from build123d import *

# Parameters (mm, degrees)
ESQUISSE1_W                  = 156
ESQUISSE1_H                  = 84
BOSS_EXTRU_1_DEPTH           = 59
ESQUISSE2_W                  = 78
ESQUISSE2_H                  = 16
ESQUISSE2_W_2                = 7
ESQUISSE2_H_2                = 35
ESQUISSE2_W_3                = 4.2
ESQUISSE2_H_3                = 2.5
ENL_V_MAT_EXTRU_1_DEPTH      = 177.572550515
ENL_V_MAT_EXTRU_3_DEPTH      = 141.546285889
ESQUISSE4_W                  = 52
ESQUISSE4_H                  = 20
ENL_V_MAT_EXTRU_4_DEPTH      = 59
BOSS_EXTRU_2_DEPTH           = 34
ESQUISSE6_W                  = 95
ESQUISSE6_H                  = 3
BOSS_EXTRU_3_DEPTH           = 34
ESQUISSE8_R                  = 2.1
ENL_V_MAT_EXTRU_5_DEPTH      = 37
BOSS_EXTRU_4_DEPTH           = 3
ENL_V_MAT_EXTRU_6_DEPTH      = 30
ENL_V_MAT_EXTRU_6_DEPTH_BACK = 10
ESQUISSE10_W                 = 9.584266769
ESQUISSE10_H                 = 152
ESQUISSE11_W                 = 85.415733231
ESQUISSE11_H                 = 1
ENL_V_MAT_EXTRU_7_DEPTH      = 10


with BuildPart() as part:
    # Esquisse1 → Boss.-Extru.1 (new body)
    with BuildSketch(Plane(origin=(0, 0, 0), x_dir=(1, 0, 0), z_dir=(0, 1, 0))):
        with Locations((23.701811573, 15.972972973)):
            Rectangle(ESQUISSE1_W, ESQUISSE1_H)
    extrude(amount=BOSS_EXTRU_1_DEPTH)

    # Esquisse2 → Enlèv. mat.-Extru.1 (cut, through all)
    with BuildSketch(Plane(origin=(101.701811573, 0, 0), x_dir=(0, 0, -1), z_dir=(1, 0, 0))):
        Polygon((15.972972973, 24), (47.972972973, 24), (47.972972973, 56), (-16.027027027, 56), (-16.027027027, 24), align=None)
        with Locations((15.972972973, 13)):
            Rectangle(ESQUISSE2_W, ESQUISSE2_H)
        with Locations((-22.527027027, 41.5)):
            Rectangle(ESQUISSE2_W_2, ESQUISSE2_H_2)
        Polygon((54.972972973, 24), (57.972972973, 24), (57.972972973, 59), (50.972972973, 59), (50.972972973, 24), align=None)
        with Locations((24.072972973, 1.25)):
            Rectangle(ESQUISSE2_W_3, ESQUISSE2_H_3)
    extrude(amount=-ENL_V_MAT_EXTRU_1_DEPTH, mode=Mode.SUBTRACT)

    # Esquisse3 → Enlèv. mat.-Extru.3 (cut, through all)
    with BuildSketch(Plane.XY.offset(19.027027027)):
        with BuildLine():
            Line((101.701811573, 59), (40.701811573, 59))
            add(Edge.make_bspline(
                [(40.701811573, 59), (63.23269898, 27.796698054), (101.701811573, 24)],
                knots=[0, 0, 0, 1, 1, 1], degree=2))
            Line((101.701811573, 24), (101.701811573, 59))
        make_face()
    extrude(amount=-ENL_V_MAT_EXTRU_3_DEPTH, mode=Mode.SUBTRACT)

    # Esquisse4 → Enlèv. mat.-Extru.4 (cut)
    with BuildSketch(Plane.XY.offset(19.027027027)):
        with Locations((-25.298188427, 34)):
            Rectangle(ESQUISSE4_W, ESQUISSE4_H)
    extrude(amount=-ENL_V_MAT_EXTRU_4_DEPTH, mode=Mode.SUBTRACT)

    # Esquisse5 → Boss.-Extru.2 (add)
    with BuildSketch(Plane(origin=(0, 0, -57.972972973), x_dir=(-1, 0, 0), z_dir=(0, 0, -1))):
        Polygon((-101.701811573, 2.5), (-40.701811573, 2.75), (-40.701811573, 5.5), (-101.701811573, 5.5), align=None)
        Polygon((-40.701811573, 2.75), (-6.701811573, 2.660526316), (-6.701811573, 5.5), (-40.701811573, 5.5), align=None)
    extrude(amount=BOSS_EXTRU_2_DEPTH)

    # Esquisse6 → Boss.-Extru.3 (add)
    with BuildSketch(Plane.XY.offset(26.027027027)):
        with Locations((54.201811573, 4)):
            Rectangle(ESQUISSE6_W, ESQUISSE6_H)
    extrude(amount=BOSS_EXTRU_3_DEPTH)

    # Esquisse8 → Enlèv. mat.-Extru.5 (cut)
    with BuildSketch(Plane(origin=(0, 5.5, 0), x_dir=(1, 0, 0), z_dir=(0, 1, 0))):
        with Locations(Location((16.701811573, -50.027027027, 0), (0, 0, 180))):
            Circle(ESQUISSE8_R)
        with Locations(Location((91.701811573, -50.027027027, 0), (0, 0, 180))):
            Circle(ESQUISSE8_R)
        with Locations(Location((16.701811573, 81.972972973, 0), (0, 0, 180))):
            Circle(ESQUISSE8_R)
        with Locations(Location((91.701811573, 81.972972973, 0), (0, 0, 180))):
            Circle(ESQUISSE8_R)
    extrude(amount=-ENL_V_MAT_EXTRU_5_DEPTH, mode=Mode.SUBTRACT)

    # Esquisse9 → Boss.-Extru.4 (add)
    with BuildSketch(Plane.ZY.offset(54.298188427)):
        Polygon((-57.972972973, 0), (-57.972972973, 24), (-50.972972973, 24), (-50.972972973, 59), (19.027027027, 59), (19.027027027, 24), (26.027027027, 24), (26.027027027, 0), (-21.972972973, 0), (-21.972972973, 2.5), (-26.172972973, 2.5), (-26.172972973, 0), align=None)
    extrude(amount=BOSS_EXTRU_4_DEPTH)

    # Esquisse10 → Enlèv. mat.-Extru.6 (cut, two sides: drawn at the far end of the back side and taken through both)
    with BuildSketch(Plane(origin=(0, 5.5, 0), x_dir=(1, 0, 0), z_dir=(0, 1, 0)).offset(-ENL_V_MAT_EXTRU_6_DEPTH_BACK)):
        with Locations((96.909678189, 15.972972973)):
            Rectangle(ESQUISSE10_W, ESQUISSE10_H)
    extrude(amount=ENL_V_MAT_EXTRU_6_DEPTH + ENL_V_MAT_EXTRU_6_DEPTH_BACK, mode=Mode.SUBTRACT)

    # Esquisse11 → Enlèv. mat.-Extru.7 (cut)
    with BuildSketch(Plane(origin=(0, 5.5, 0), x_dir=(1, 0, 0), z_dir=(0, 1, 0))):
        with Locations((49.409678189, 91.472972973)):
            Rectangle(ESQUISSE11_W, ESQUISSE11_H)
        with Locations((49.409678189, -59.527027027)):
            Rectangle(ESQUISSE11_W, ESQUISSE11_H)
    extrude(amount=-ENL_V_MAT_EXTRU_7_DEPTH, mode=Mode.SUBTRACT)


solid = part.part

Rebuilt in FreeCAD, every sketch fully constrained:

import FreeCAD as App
import Part
import Sketcher
Q = App.Units.Quantity

doc = App.newDocument("Part")
body = doc.addObject("PartDesign::Body", "Body")

sketch1 = doc.addObject("Sketcher::SketchObject", "Sketch")
body.addObject(sketch1)
sketch1.AttachmentSupport = (doc.XZ_Plane, [""])
sketch1.MapMode = "FlatFace"
sketch1.addGeometry([
    Part.LineSegment(App.Vector(-54.298188, -57.972973, 0), App.Vector(-54.298188, 26.027027, 0)),
    Part.LineSegment(App.Vector(-54.298188, 26.027027, 0), App.Vector(101.701812, 26.027027, 0)),
    Part.LineSegment(App.Vector(101.701812, 26.027027, 0), App.Vector(101.701812, -57.972973, 0)),
    Part.LineSegment(App.Vector(101.701812, -57.972973, 0), App.Vector(-54.298188, -57.972973, 0)),
], False)
sketch1.addConstraint([
    Sketcher.Constraint("Coincident", 0, 2, 1, 1),
    Sketcher.Constraint("Coincident", 1, 2, 2, 1),
    Sketcher.Constraint("Coincident", 2, 2, 3, 1),
    Sketcher.Constraint("Coincident", 3, 2, 0, 1),
    Sketcher.Constraint("Vertical", 0),
    Sketcher.Constraint("Horizontal", 1),
    Sketcher.Constraint("Vertical", 2),
    Sketcher.Constraint("Horizontal", 3),
    Sketcher.Constraint("DistanceX", 1, 1, 1, 2, Q("156 mm")),
    Sketcher.Constraint("DistanceY", 0, 1, 0, 2, Q("84 mm")),
    Sketcher.Constraint("DistanceX", 0, 2, -1, 1, Q("54.298188 mm")),
    Sketcher.Constraint("DistanceY", -1, 1, 0, 2, Q("26.027027 mm")),
])
pad1 = doc.addObject("PartDesign::Pad", "Pad")
body.addObject(pad1)
pad1.Profile = sketch1
pad1.Length = 59
pad1.Reversed = True

sketch2 = doc.addObject("Sketcher::SketchObject", "Sketch001")
body.addObject(sketch2)
sketch2.AttachmentSupport = (doc.YZ_Plane, [""])
sketch2.MapMode = "FlatFace"
sketch2.AttachmentOffset = App.Placement(App.Vector(0, 0, 101.701812), App.Rotation())
sketch2.addGeometry([
    Part.LineSegment(App.Vector(24, -47.972973, 0), App.Vector(56, -47.972973, 0)),
    Part.LineSegment(App.Vector(56, -47.972973, 0), App.Vector(56, 16.027027, 0)),
    Part.LineSegment(App.Vector(56, 16.027027, 0), App.Vector(24, 16.027027, 0)),
    Part.LineSegment(App.Vector(24, 16.027027, 0), App.Vector(24, -47.972973, 0)),
    Part.LineSegment(App.Vector(21, 23.027027, 0), App.Vector(5, 23.027027, 0)),
    Part.LineSegment(App.Vector(5, 23.027027, 0), App.Vector(5, -54.972973, 0)),
    Part.LineSegment(App.Vector(5, -54.972973, 0), App.Vector(21, -54.972973, 0)),
    Part.LineSegment(App.Vector(21, -54.972973, 0), App.Vector(21, 23.027027, 0)),
    Part.LineSegment(App.Vector(59, 26.027027, 0), App.Vector(24, 26.027027, 0)),
    Part.LineSegment(App.Vector(24, 26.027027, 0), App.Vector(24, 19.027027, 0)),
    Part.LineSegment(App.Vector(24, 19.027027, 0), App.Vector(59, 19.027027, 0)),
    Part.LineSegment(App.Vector(59, 19.027027, 0), App.Vector(59, 26.027027, 0)),
    Part.LineSegment(App.Vector(24, -57.972973, 0), App.Vector(59, -57.972973, 0)),
    Part.LineSegment(App.Vector(59, -57.972973, 0), App.Vector(59, -50.972973, 0)),
    Part.LineSegment(App.Vector(59, -50.972973, 0), App.Vector(24, -50.972973, 0)),
    Part.LineSegment(App.Vector(24, -50.972973, 0), App.Vector(24, -57.972973, 0)),
    Part.LineSegment(App.Vector(2.5, -21.972973, 0), App.Vector(0, -21.972973, 0)),
    Part.LineSegment(App.Vector(0, -21.972973, 0), App.Vector(0, -26.172973, 0)),
    Part.LineSegment(App.Vector(0, -26.172973, 0), App.Vector(2.5, -26.172973, 0)),
    Part.LineSegment(App.Vector(2.5, -26.172973, 0), App.Vector(2.5, -21.972973, 0)),
], False)
sketch2.addConstraint([
    Sketcher.Constraint("Coincident", 0, 2, 1, 1),
    Sketcher.Constraint("Coincident", 1, 2, 2, 1),
    Sketcher.Constraint("Coincident", 2, 2, 3, 1),
    Sketcher.Constraint("Coincident", 3, 2, 0, 1),
    Sketcher.Constraint("Coincident", 4, 2, 5, 1),
    Sketcher.Constraint("Coincident", 5, 2, 6, 1),
    Sketcher.Constraint("Coincident", 6, 2, 7, 1),
    Sketcher.Constraint("Coincident", 7, 2, 4, 1),
    Sketcher.Constraint("Coincident", 8, 2, 9, 1),
    Sketcher.Constraint("Coincident", 9, 2, 10, 1),
    Sketcher.Constraint("Coincident", 10, 2, 11, 1),
    Sketcher.Constraint("Coincident", 11, 2, 8, 1),
    Sketcher.Constraint("Coincident", 12, 2, 13, 1),
    Sketcher.Constraint("Coincident", 13, 2, 14, 1),
    Sketcher.Constraint("Coincident", 14, 2, 15, 1),
    Sketcher.Constraint("Coincident", 15, 2, 12, 1),
    Sketcher.Constraint("Coincident", 16, 2, 17, 1),
    Sketcher.Constraint("Coincident", 17, 2, 18, 1),
    Sketcher.Constraint("Coincident", 18, 2, 19, 1),
    Sketcher.Constraint("Coincident", 19, 2, 16, 1),
    Sketcher.Constraint("Horizontal", 0),
    Sketcher.Constraint("Vertical", 1),
    Sketcher.Constraint("Horizontal", 2),
    Sketcher.Constraint("Vertical", 3),
    Sketcher.Constraint("Horizontal", 4),
    Sketcher.Constraint("Vertical", 5),
    Sketcher.Constraint("Horizontal", 6),
    Sketcher.Constraint("Vertical", 7),
    Sketcher.Constraint("Horizontal", 8),
    Sketcher.Constraint("Vertical", 9),
    Sketcher.Constraint("Horizontal", 10),
    Sketcher.Constraint("Vertical", 11),
    Sketcher.Constraint("Horizontal", 12),
    Sketcher.Constraint("Vertical", 13),
    Sketcher.Constraint("Horizontal", 14),
    Sketcher.Constraint("Vertical", 15),
    Sketcher.Constraint("Horizontal", 16),
    Sketcher.Constraint("Vertical", 17),
    Sketcher.Constraint("Horizontal", 18),
    Sketcher.Constraint("Vertical", 19),
    Sketcher.Constraint("PointOnObject", 16, 2, -2),
    Sketcher.Constraint("Vertical", 3, 2, 8, 2),
    Sketcher.Constraint("Vertical", 11, 2, 12, 2),
    Sketcher.Constraint("Vertical", 9, 2, 14, 2),
    Sketcher.Constraint("Equal", 11, 13),
    Sketcher.Constraint("DistanceX", 0, 1, 0, 2, Q("32 mm")),
    Sketcher.Constraint("DistanceX", 4, 2, 4, 1, Q("16 mm")),
    Sketcher.Constraint("DistanceX", 8, 2, 8, 1, Q("35 mm")),
    Sketcher.Constraint("DistanceY", 1, 1, 1, 2, Q("64 mm")),
    Sketcher.Constraint("DistanceY", 5, 2, 5, 1, Q("78 mm")),
    Sketcher.Constraint("DistanceY", 9, 2, 9, 1, Q("7 mm")),
    Sketcher.Constraint("DistanceX", 16, 2, 16, 1, Q("2.5 mm")),
    Sketcher.Constraint("DistanceY", 17, 2, 17, 1, Q("4.2 mm")),
    Sketcher.Constraint("DistanceX", -1, 1, 0, 2, Q("56 mm")),
    Sketcher.Constraint("DistanceX", -1, 1, 4, 2, Q("5 mm")),
    Sketcher.Constraint("DistanceY", 2, 2, 4, 2, Q("7 mm")),
    Sketcher.Constraint("DistanceY", 7, 2, 8, 2, Q("3 mm")),
    Sketcher.Constraint("DistanceY", 12, 2, 0, 2, Q("10 mm")),
    Sketcher.Constraint("DistanceY", 5, 2, 16, 2, Q("33 mm")),
    Sketcher.Constraint("DistanceY", 0, 2, -1, 1, Q("47.972973 mm")),
])
pocket1 = doc.addObject("PartDesign::Pocket", "Pocket")
body.addObject(pocket1)
pocket1.Profile = sketch2
pocket1.Type = "ThroughAll"

sketch3 = doc.addObject("Sketcher::SketchObject", "Sketch002")
body.addObject(sketch3)
sketch3.AttachmentSupport = (doc.XY_Plane, [""])
sketch3.MapMode = "FlatFace"
sketch3.AttachmentOffset = App.Placement(App.Vector(0, 0, 19.027027), App.Rotation())
sketch3.addGeometry([
    Part.LineSegment(App.Vector(101.701812, 59, 0), App.Vector(40.701812, 59, 0)),
    Part.BSplineCurve([App.Vector(40.701812, 59, 0), App.Vector(63.232699, 27.796698, 0), App.Vector(101.701812, 24, 0)], [3, 3], [0, 1], False, 2, [1, 1, 1], False),
    Part.LineSegment(App.Vector(101.701812, 24, 0), App.Vector(101.701812, 59, 0)),
], False)
sketch3.addConstraint([
    Sketcher.Constraint("Block", 1),
    Sketcher.Constraint("Coincident", 0, 2, 1, 1),
    Sketcher.Constraint("Coincident", 1, 2, 2, 1),
    Sketcher.Constraint("Coincident", 2, 2, 0, 1),
    Sketcher.Constraint("Horizontal", 0),
    Sketcher.Constraint("Vertical", 2),
])
pocket2 = doc.addObject("PartDesign::Pocket", "Pocket001")
body.addObject(pocket2)
pocket2.Profile = sketch3
pocket2.Type = "ThroughAll"

sketch4 = doc.addObject("Sketcher::SketchObject", "Sketch003")
body.addObject(sketch4)
sketch4.AttachmentSupport = (doc.XY_Plane, [""])
sketch4.MapMode = "FlatFace"
sketch4.AttachmentOffset = App.Placement(App.Vector(0, 0, 19.027027), App.Rotation())
sketch4.addGeometry([
    Part.LineSegment(App.Vector(-51.298188, 44, 0), App.Vector(-51.298188, 24, 0)),
    Part.LineSegment(App.Vector(-51.298188, 24, 0), App.Vector(0.701812, 24, 0)),
    Part.LineSegment(App.Vector(0.701812, 24, 0), App.Vector(0.701812, 44, 0)),
    Part.LineSegment(App.Vector(0.701812, 44, 0), App.Vector(-51.298188, 44, 0)),
], False)
sketch4.addConstraint([
    Sketcher.Constraint("Coincident", 0, 2, 1, 1),
    Sketcher.Constraint("Coincident", 1, 2, 2, 1),
    Sketcher.Constraint("Coincident", 2, 2, 3, 1),
    Sketcher.Constraint("Coincident", 3, 2, 0, 1),
    Sketcher.Constraint("Vertical", 0),
    Sketcher.Constraint("Horizontal", 1),
    Sketcher.Constraint("Vertical", 2),
    Sketcher.Constraint("Horizontal", 3),
    Sketcher.Constraint("DistanceX", 1, 1, 1, 2, Q("52 mm")),
    Sketcher.Constraint("DistanceY", 0, 2, 0, 1, Q("20 mm")),
    Sketcher.Constraint("DistanceY", -1, 1, 0, 2, Q("24 mm")),
    Sketcher.Constraint("DistanceX", 0, 2, -1, 1, Q("51.298188 mm")),
])
pocket3 = doc.addObject("PartDesign::Pocket", "Pocket002")
body.addObject(pocket3)
pocket3.Profile = sketch4
pocket3.Length = 59

sketch5 = doc.addObject("Sketcher::SketchObject", "Sketch004")
body.addObject(sketch5)
sketch5.AttachmentSupport = (doc.XY_Plane, [""])
sketch5.MapMode = "FlatFace"
sketch5.AttachmentOffset = App.Placement(App.Vector(0, 0, -57.972973), App.Rotation())
sketch5.addGeometry([
    Part.LineSegment(App.Vector(101.701812, 2.5, 0), App.Vector(40.701812, 2.75, 0)),
    Part.LineSegment(App.Vector(40.701812, 2.75, 0), App.Vector(6.701812, 2.660526, 0)),
    Part.LineSegment(App.Vector(6.701812, 2.660526, 0), App.Vector(6.701812, 5.5, 0)),
    Part.LineSegment(App.Vector(6.701812, 5.5, 0), App.Vector(101.701812, 5.5, 0)),
    Part.LineSegment(App.Vector(101.701812, 5.5, 0), App.Vector(101.701812, 2.5, 0)),
], False)
sketch5.addConstraint([
    Sketcher.Constraint("Coincident", 0, 2, 1, 1),
    Sketcher.Constraint("Coincident", 1, 2, 2, 1),
    Sketcher.Constraint("Coincident", 2, 2, 3, 1),
    Sketcher.Constraint("Coincident", 3, 2, 4, 1),
    Sketcher.Constraint("Coincident", 4, 2, 0, 1),
    Sketcher.Constraint("Vertical", 2),
    Sketcher.Constraint("Horizontal", 3),
    Sketcher.Constraint("Vertical", 4),
    Sketcher.Constraint("DistanceX", 3, 1, 3, 2, Q("95 mm")),
    Sketcher.Constraint("DistanceY", 4, 2, 4, 1, Q("3 mm")),
    Sketcher.Constraint("DistanceX", 1, 2, 0, 2, Q("34 mm")),
    Sketcher.Constraint("DistanceY", -1, 1, 2, 2, Q("5.5 mm")),
    Sketcher.Constraint("DistanceY", -1, 1, 0, 2, Q("2.75 mm")),
    Sketcher.Constraint("DistanceY", 2, 1, 2, 2, Q("2.839474 mm")),
    Sketcher.Constraint("DistanceX", -1, 1, 0, 2, Q("40.701812 mm")),
])
pad2 = doc.addObject("PartDesign::Pad", "Pad001")
body.addObject(pad2)
pad2.Profile = sketch5
pad2.Length = 34
pad2.Reversed = True

sketch6 = doc.addObject("Sketcher::SketchObject", "Sketch005")
body.addObject(sketch6)
sketch6.AttachmentSupport = (doc.XY_Plane, [""])
sketch6.MapMode = "FlatFace"
sketch6.AttachmentOffset = App.Placement(App.Vector(0, 0, 26.027027), App.Rotation())
sketch6.addGeometry([
    Part.LineSegment(App.Vector(6.701812, 5.5, 0), App.Vector(6.701812, 2.5, 0)),
    Part.LineSegment(App.Vector(6.701812, 2.5, 0), App.Vector(101.701812, 2.5, 0)),
    Part.LineSegment(App.Vector(101.701812, 2.5, 0), App.Vector(101.701812, 5.5, 0)),
    Part.LineSegment(App.Vector(101.701812, 5.5, 0), App.Vector(6.701812, 5.5, 0)),
], False)
sketch6.addConstraint([
    Sketcher.Constraint("Coincident", 0, 2, 1, 1),
    Sketcher.Constraint("Coincident", 1, 2, 2, 1),
    Sketcher.Constraint("Coincident", 2, 2, 3, 1),
    Sketcher.Constraint("Coincident", 3, 2, 0, 1),
    Sketcher.Constraint("Vertical", 0),
    Sketcher.Constraint("Horizontal", 1),
    Sketcher.Constraint("Vertical", 2),
    Sketcher.Constraint("Horizontal", 3),
    Sketcher.Constraint("DistanceX", 1, 1, 1, 2, Q("95 mm")),
    Sketcher.Constraint("DistanceY", 0, 2, 0, 1, Q("3 mm")),
    Sketcher.Constraint("DistanceY", -1, 1, 0, 2, Q("2.5 mm")),
    Sketcher.Constraint("DistanceX", -1, 1, 0, 2, Q("6.701812 mm")),
])
pad3 = doc.addObject("PartDesign::Pad", "Pad002")
body.addObject(pad3)
pad3.Profile = sketch6
pad3.Length = 34

sketch7 = doc.addObject("Sketcher::SketchObject", "Sketch006")
body.addObject(sketch7)
sketch7.AttachmentSupport = (doc.XZ_Plane, [""])
sketch7.MapMode = "FlatFace"
sketch7.AttachmentOffset = App.Placement(App.Vector(0, 0, -5.5), App.Rotation())
sketch7.addGeometry([
    Part.Circle(App.Vector(16.701812, 50.027027, 0), App.Vector(0, 0, 1), 2.1),
    Part.Circle(App.Vector(91.701812, 50.027027, 0), App.Vector(0, 0, 1), 2.1),
    Part.Circle(App.Vector(16.701812, -81.972973, 0), App.Vector(0, 0, 1), 2.1),
    Part.Circle(App.Vector(91.701812, -81.972973, 0), App.Vector(0, 0, 1), 2.1),
], False)
sketch7.addConstraint([
    Sketcher.Constraint("Equal", 0, 1),
    Sketcher.Constraint("Equal", 1, 2),
    Sketcher.Constraint("Equal", 2, 3),
    Sketcher.Constraint("Horizontal", 0, 3, 1, 3),
    Sketcher.Constraint("Horizontal", 2, 3, 3, 3),
    Sketcher.Constraint("Vertical", 0, 3, 2, 3),
    Sketcher.Constraint("Vertical", 1, 3, 3, 3),
    Sketcher.Constraint("Diameter", 0, Q("4.2 mm")),
    Sketcher.Constraint("DistanceX", 0, 3, 1, 3, Q("75 mm")),
    Sketcher.Constraint("DistanceY", 2, 3, 0, 3, Q("132 mm")),
    Sketcher.Constraint("DistanceX", -1, 1, 0, 3, Q("16.701812 mm")),
    Sketcher.Constraint("DistanceY", -1, 1, 0, 3, Q("50.027027 mm")),
])
pocket4 = doc.addObject("PartDesign::Pocket", "Pocket003")
body.addObject(pocket4)
pocket4.Profile = sketch7
pocket4.Length = 37
pocket4.Reversed = True

sketch8 = doc.addObject("Sketcher::SketchObject", "Sketch007")
body.addObject(sketch8)
sketch8.AttachmentSupport = (doc.YZ_Plane, [""])
sketch8.MapMode = "FlatFace"
sketch8.AttachmentOffset = App.Placement(App.Vector(0, 0, -54.298188), App.Rotation())
sketch8.addGeometry([
    Part.LineSegment(App.Vector(24, -57.972973, 0), App.Vector(0, -57.972973, 0)),
    Part.LineSegment(App.Vector(0, -57.972973, 0), App.Vector(0, -26.172973, 0)),
    Part.LineSegment(App.Vector(0, -26.172973, 0), App.Vector(2.5, -26.172973, 0)),
    Part.LineSegment(App.Vector(2.5, -26.172973, 0), App.Vector(2.5, -21.972973, 0)),
    Part.LineSegment(App.Vector(2.5, -21.972973, 0), App.Vector(0, -21.972973, 0)),
    Part.LineSegment(App.Vector(0, -21.972973, 0), App.Vector(0, 26.027027, 0)),
    Part.LineSegment(App.Vector(0, 26.027027, 0), App.Vector(24, 26.027027, 0)),
    Part.LineSegment(App.Vector(24, 26.027027, 0), App.Vector(24, 19.027027, 0)),
    Part.LineSegment(App.Vector(24, 19.027027, 0), App.Vector(59, 19.027027, 0)),
    Part.LineSegment(App.Vector(59, 19.027027, 0), App.Vector(59, -50.972973, 0)),
    Part.LineSegment(App.Vector(59, -50.972973, 0), App.Vector(24, -50.972973, 0)),
    Part.LineSegment(App.Vector(24, -50.972973, 0), App.Vector(24, -57.972973, 0)),
], False)
sketch8.addConstraint([
    Sketcher.Constraint("Coincident", 0, 2, 1, 1),
    Sketcher.Constraint("Coincident", 1, 2, 2, 1),
    Sketcher.Constraint("Coincident", 2, 2, 3, 1),
    Sketcher.Constraint("Coincident", 3, 2, 4, 1),
    Sketcher.Constraint("Coincident", 4, 2, 5, 1),
    Sketcher.Constraint("Coincident", 5, 2, 6, 1),
    Sketcher.Constraint("Coincident", 6, 2, 7, 1),
    Sketcher.Constraint("Coincident", 7, 2, 8, 1),
    Sketcher.Constraint("Coincident", 8, 2, 9, 1),
    Sketcher.Constraint("Coincident", 9, 2, 10, 1),
    Sketcher.Constraint("Coincident", 10, 2, 11, 1),
    Sketcher.Constraint("Coincident", 11, 2, 0, 1),
    Sketcher.Constraint("Horizontal", 0),
    Sketcher.Constraint("Vertical", 1),
    Sketcher.Constraint("Horizontal", 2),
    Sketcher.Constraint("Vertical", 3),
    Sketcher.Constraint("Horizontal", 4),
    Sketcher.Constraint("Vertical", 5),
    Sketcher.Constraint("Horizontal", 6),
    Sketcher.Constraint("Vertical", 7),
    Sketcher.Constraint("Horizontal", 8),
    Sketcher.Constraint("Vertical", 9),
    Sketcher.Constraint("Horizontal", 10),
    Sketcher.Constraint("Vertical", 11),
    Sketcher.Constraint("PointOnObject", 0, 2, -2),
    Sketcher.Constraint("PointOnObject", 4, 2, -2),
    Sketcher.Constraint("Vertical", 7, 2, 10, 2),
    Sketcher.Constraint("Equal", 7, 11),
    Sketcher.Constraint("DistanceX", 0, 2, 0, 1, Q("24 mm")),
    Sketcher.Constraint("DistanceX", 8, 1, 8, 2, Q("35 mm")),
    Sketcher.Constraint("DistanceY", 5, 1, 5, 2, Q("48 mm")),
    Sketcher.Constraint("DistanceY", 7, 2, 7, 1, Q("7 mm")),
    Sketcher.Constraint("DistanceY", 9, 2, 9, 1, Q("70 mm")),
    Sketcher.Constraint("DistanceX", 2, 1, 2, 2, Q("2.5 mm")),
    Sketcher.Constraint("DistanceY", 1, 1, 1, 2, Q("31.8 mm")),
    Sketcher.Constraint("DistanceY", 0, 2, -1, 1, Q("57.972973 mm")),
])
pad4 = doc.addObject("PartDesign::Pad", "Pad003")
body.addObject(pad4)
pad4.Profile = sketch8
pad4.Length = 3
pad4.Reversed = True

sketch9 = doc.addObject("Sketcher::SketchObject", "Sketch008")
body.addObject(sketch9)
sketch9.AttachmentSupport = (doc.XZ_Plane, [""])
sketch9.MapMode = "FlatFace"
sketch9.AttachmentOffset = App.Placement(App.Vector(0, 0, -5.5), App.Rotation())
sketch9.addGeometry([
    Part.LineSegment(App.Vector(92.117545, -91.972973, 0), App.Vector(92.117545, 60.027027, 0)),
    Part.LineSegment(App.Vector(92.117545, 60.027027, 0), App.Vector(101.701812, 60.027027, 0)),
    Part.LineSegment(App.Vector(101.701812, 60.027027, 0), App.Vector(101.701812, -91.972973, 0)),
    Part.LineSegment(App.Vector(101.701812, -91.972973, 0), App.Vector(92.117545, -91.972973, 0)),
], False)
sketch9.addConstraint([
    Sketcher.Constraint("Coincident", 0, 2, 1, 1),
    Sketcher.Constraint("Coincident", 1, 2, 2, 1),
    Sketcher.Constraint("Coincident", 2, 2, 3, 1),
    Sketcher.Constraint("Coincident", 3, 2, 0, 1),
    Sketcher.Constraint("Vertical", 0),
    Sketcher.Constraint("Horizontal", 1),
    Sketcher.Constraint("Vertical", 2),
    Sketcher.Constraint("Horizontal", 3),
    Sketcher.Constraint("DistanceY", 0, 1, 0, 2, Q("152 mm")),
    Sketcher.Constraint("DistanceX", 1, 1, 1, 2, Q("9.584267 mm")),
    Sketcher.Constraint("DistanceX", -1, 1, 1, 2, Q("101.701812 mm")),
    Sketcher.Constraint("DistanceY", -1, 1, 0, 2, Q("60.027027 mm")),
])
pocket5 = doc.addObject("PartDesign::Pocket", "Pocket004")
body.addObject(pocket5)
pocket5.Profile = sketch9
pocket5.Type = "ThroughAll"
pocket5.Midplane = True

sketch10 = doc.addObject("Sketcher::SketchObject", "Sketch009")
body.addObject(sketch10)
sketch10.AttachmentSupport = (doc.XZ_Plane, [""])
sketch10.MapMode = "FlatFace"
sketch10.AttachmentOffset = App.Placement(App.Vector(0, 0, -5.5), App.Rotation())
sketch10.addGeometry([
    Part.LineSegment(App.Vector(6.701812, -91.972973, 0), App.Vector(6.701812, -90.972973, 0)),
    Part.LineSegment(App.Vector(6.701812, -90.972973, 0), App.Vector(92.117545, -90.972973, 0)),
    Part.LineSegment(App.Vector(92.117545, -90.972973, 0), App.Vector(92.117545, -91.972973, 0)),
    Part.LineSegment(App.Vector(92.117545, -91.972973, 0), App.Vector(6.701812, -91.972973, 0)),
    Part.LineSegment(App.Vector(6.701812, 59.027027, 0), App.Vector(6.701812, 60.027027, 0)),
    Part.LineSegment(App.Vector(6.701812, 60.027027, 0), App.Vector(92.117545, 60.027027, 0)),
    Part.LineSegment(App.Vector(92.117545, 60.027027, 0), App.Vector(92.117545, 59.027027, 0)),
    Part.LineSegment(App.Vector(92.117545, 59.027027, 0), App.Vector(6.701812, 59.027027, 0)),
], False)
sketch10.addConstraint([
    Sketcher.Constraint("Coincident", 0, 2, 1, 1),
    Sketcher.Constraint("Coincident", 1, 2, 2, 1),
    Sketcher.Constraint("Coincident", 2, 2, 3, 1),
    Sketcher.Constraint("Coincident", 3, 2, 0, 1),
    Sketcher.Constraint("Coincident", 4, 2, 5, 1),
    Sketcher.Constraint("Coincident", 5, 2, 6, 1),
    Sketcher.Constraint("Coincident", 6, 2, 7, 1),
    Sketcher.Constraint("Coincident", 7, 2, 4, 1),
    Sketcher.Constraint("Vertical", 0),
    Sketcher.Constraint("Horizontal", 1),
    Sketcher.Constraint("Vertical", 2),
    Sketcher.Constraint("Horizontal", 3),
    Sketcher.Constraint("Vertical", 4),
    Sketcher.Constraint("Horizontal", 5),
    Sketcher.Constraint("Vertical", 6),
    Sketcher.Constraint("Horizontal", 7),
    Sketcher.Constraint("Vertical", 3, 2, 4, 2),
    Sketcher.Constraint("Vertical", 2, 2, 5, 2),
    Sketcher.Constraint("Equal", 2, 4),
    Sketcher.Constraint("DistanceY", 0, 1, 0, 2, Q("1 mm")),
    Sketcher.Constraint("DistanceY", 0, 2, 4, 2, Q("151 mm")),
    Sketcher.Constraint("DistanceX", 1, 1, 1, 2, Q("85.415733 mm")),
    Sketcher.Constraint("DistanceX", -1, 1, 0, 2, Q("6.701812 mm")),
    Sketcher.Constraint("DistanceY", 0, 2, -1, 1, Q("90.972973 mm")),
])
pocket6 = doc.addObject("PartDesign::Pocket", "Pocket005")
body.addObject(pocket6)
pocket6.Profile = sketch10
pocket6.Length = 10
pocket6.Reversed = True

doc.recompute()
